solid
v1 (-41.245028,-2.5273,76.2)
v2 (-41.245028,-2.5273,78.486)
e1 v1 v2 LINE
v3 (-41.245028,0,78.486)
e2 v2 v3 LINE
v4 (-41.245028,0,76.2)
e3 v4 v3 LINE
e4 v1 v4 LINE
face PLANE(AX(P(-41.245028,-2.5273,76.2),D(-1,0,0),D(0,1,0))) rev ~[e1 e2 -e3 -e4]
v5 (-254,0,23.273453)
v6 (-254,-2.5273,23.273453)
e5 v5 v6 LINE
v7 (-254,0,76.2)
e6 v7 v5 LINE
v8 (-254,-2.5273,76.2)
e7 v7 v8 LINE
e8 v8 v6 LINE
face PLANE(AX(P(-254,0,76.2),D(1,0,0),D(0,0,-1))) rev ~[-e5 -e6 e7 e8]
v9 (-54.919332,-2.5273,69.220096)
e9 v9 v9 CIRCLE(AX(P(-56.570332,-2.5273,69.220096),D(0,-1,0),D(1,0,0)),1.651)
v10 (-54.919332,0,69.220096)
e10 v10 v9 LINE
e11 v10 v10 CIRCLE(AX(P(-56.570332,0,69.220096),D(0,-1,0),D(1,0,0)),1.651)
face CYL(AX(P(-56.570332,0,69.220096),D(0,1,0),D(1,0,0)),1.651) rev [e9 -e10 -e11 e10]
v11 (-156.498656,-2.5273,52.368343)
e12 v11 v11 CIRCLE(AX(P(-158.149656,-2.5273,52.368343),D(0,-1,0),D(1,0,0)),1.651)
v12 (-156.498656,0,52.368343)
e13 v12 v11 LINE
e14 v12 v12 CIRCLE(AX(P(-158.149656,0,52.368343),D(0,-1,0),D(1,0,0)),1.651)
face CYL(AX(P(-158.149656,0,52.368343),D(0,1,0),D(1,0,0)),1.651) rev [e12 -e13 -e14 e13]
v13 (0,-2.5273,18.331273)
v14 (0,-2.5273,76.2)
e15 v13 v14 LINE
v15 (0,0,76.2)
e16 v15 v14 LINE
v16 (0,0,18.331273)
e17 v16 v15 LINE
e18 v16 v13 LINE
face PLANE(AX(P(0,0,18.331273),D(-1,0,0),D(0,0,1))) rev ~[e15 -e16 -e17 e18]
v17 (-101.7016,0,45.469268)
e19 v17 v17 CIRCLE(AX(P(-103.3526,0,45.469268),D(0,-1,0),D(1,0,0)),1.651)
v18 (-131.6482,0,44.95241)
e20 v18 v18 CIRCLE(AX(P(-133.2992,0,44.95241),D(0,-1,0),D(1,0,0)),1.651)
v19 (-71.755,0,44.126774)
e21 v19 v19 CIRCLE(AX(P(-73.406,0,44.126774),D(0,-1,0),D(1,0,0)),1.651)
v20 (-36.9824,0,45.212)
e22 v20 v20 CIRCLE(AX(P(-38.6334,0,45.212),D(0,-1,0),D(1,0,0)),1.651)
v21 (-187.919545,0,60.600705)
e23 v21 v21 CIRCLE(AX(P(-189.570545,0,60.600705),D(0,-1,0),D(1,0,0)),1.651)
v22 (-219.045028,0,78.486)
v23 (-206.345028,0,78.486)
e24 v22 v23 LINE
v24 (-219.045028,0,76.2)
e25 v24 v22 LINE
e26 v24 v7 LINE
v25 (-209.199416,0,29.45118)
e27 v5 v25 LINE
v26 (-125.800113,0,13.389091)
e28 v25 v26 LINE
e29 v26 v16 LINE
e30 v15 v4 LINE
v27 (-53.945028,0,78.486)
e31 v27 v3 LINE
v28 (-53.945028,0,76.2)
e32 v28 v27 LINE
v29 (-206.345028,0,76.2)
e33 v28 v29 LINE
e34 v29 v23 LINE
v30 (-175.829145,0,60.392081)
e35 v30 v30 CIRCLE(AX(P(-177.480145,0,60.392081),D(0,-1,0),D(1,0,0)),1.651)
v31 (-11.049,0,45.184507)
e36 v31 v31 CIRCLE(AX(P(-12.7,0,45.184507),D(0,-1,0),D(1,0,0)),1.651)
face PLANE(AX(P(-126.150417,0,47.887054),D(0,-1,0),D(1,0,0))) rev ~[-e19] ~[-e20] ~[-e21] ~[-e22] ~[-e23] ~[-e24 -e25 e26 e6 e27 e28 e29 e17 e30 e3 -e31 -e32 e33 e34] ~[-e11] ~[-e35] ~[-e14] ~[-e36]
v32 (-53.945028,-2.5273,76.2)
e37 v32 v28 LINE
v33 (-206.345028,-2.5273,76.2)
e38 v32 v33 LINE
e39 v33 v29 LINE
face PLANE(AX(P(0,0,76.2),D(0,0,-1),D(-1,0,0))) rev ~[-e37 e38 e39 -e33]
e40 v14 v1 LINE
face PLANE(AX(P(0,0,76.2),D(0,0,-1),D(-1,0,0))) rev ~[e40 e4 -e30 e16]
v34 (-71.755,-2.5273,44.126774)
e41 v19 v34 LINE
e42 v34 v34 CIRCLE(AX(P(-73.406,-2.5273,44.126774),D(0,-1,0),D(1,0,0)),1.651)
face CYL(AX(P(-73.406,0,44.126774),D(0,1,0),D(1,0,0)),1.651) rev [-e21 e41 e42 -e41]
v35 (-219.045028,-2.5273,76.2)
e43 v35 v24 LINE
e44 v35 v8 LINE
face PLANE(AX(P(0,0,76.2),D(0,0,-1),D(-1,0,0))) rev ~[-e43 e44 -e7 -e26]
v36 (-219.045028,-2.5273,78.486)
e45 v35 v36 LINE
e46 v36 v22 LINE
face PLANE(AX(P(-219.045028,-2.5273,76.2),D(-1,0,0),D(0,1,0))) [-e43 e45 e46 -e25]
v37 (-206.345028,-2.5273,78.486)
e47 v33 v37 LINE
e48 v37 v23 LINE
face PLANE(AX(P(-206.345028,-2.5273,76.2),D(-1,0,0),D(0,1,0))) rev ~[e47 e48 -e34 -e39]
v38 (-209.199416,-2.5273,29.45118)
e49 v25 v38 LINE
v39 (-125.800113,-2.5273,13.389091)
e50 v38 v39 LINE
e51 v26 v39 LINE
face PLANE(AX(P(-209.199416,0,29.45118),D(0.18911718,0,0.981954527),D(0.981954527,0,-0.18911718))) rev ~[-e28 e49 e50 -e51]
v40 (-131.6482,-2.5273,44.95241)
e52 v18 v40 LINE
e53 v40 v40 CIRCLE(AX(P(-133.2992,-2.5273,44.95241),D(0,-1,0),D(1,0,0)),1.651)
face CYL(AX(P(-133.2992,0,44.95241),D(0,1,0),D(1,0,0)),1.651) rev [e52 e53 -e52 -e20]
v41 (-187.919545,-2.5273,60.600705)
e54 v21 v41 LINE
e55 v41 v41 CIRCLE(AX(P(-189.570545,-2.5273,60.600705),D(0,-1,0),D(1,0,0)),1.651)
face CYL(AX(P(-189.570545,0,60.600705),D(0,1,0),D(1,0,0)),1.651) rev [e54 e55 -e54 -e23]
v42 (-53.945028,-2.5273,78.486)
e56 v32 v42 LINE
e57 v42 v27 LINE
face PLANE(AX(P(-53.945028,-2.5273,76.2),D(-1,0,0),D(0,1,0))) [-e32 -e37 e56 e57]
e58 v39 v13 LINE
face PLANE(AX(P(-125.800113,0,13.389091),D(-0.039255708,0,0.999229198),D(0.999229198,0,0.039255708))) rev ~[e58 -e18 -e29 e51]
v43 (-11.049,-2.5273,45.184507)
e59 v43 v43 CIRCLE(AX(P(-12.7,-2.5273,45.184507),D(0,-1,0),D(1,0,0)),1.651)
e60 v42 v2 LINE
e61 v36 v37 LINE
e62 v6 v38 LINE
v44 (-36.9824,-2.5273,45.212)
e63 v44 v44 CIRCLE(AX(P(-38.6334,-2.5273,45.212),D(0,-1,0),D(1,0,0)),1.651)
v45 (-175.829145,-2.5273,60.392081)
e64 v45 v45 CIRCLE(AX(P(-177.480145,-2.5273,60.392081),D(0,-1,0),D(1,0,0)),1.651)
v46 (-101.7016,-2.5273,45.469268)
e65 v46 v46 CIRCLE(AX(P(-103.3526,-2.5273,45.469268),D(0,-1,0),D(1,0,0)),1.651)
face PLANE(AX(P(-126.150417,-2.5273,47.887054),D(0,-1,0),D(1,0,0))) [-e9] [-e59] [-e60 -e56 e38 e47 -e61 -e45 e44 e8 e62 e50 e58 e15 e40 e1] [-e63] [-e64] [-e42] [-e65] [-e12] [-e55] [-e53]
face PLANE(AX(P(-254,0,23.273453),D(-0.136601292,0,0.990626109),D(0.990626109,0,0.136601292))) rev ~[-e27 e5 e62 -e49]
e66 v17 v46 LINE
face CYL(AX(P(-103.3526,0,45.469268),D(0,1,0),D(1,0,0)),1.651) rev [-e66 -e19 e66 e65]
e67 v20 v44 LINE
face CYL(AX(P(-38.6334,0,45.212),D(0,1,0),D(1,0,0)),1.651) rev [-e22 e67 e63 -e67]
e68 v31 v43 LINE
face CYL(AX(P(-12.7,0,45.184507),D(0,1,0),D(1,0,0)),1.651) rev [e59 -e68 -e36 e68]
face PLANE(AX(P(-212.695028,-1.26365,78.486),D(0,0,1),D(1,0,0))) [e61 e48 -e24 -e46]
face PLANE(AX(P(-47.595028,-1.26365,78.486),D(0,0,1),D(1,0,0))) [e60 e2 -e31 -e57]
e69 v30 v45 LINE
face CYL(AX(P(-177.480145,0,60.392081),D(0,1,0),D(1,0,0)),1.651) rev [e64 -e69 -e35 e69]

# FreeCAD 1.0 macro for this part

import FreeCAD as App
import Part
import Sketcher
Q = App.Units.Quantity

doc = App.newDocument("Part")
params = doc.addObject("Spreadsheet::Sheet", "Params")
for row, (alias, value) in enumerate([
    ("sketch1_diameter", "0.13 in"),
    ("sketch1_width", "10 in"),
    ("pad1_length", "0.0995 in"),
    ("sketch2_width", "0.5 in"),
    ("pad2_length", "0.09 in"),
], start=1):
    params.set(f"A{row}", alias)
    params.set(f"B{row}", "=" + value)
    params.setAlias(f"B{row}", alias)

body = doc.addObject("PartDesign::Body", "Body")

sketch1 = doc.addObject("Sketcher::SketchObject", "Sketch")
body.addObject(sketch1)
sketch1.AttachmentSupport = (doc.XZ_Plane, [""])
sketch1.MapMode = "FlatFace"
sketch1.addGeometry([
    Part.LineSegment(App.Vector(0, 18.331273, 0), App.Vector(0, 76.2, 0)),
    Part.LineSegment(App.Vector(0, 76.2, 0), App.Vector(-254, 76.2, 0)),
    Part.LineSegment(App.Vector(-254, 76.2, 0), App.Vector(-254, 23.273453, 0)),
    Part.LineSegment(App.Vector(-254, 23.273453, 0), App.Vector(-209.199416, 29.45118, 0)),
    Part.LineSegment(App.Vector(-209.199416, 29.45118, 0), App.Vector(-125.800113, 13.389091, 0)),
    Part.LineSegment(App.Vector(-125.800113, 13.389091, 0), App.Vector(0, 18.331273, 0)),
    Part.Circle(App.Vector(-133.2992, 44.95241, 0), App.Vector(0, 0, 1), 1.651),
    Part.Circle(App.Vector(-103.3526, 45.469268, 0), App.Vector(0, 0, 1), 1.651),
    Part.Circle(App.Vector(-158.149656, 52.368343, 0), App.Vector(0, 0, 1), 1.651),
    Part.Circle(App.Vector(-73.406, 44.126774, 0), App.Vector(0, 0, 1), 1.651),
    Part.Circle(App.Vector(-38.6334, 45.212, 0), App.Vector(0, 0, 1), 1.651),
    Part.Circle(App.Vector(-12.7, 45.184507, 0), App.Vector(0, 0, 1), 1.651),
    Part.Circle(App.Vector(-189.570545, 60.600705, 0), App.Vector(0, 0, 1), 1.651),
    Part.Circle(App.Vector(-177.480145, 60.392081, 0), App.Vector(0, 0, 1), 1.651),
    Part.Circle(App.Vector(-56.570332, 69.220096, 0), App.Vector(0, 0, 1), 1.651),
], False)
sketch1.addConstraint([
    Sketcher.Constraint("Coincident", 0, 2, 1, 1),
    Sketcher.Constraint("Coincident", 1, 2, 2, 1),
    Sketcher.Constraint("Coincident", 2, 2, 3, 1),
    Sketcher.Constraint("Coincident", 3, 2, 4, 1),
    Sketcher.Constraint("Coincident", 4, 2, 5, 1),
    Sketcher.Constraint("Coincident", 5, 2, 0, 1),
    Sketcher.Constraint("Vertical", 0),
    Sketcher.Constraint("Horizontal", 1),
    Sketcher.Constraint("Vertical", 2),
    Sketcher.Constraint("Equal", 6, 7),
    Sketcher.Constraint("Equal", 7, 8),
    Sketcher.Constraint("Equal", 8, 9),
    Sketcher.Constraint("Equal", 9, 10),
    Sketcher.Constraint("Equal", 10, 11),
    Sketcher.Constraint("Equal", 11, 12),
    Sketcher.Constraint("Equal", 12, 13),
    Sketcher.Constraint("Equal", 13, 14),
    Sketcher.Constraint("PointOnObject", 0, 2, -2),
    Sketcher.Constraint("Diameter", 6, Q("0.13 in")),
    Sketcher.Constraint("DistanceX", 1, 2, 1, 1, Q("10 in")),
    Sketcher.Constraint("DistanceY", -1, 1, 0, 2, Q("3 in")),
    Sketcher.Constraint("DistanceX", 11, 3, -1, 1, Q("0.5 in")),
    Sketcher.Constraint("DistanceX", 9, 3, -1, 1, Q("2.89 in")),
    Sketcher.Constraint("DistanceY", -1, 1, 10, 3, Q("1.78 in")),
    Sketcher.Constraint("DistanceX", 6, 3, -1, 1, Q("5.248 in")),
    Sketcher.Constraint("DistanceX", 7, 3, -1, 1, Q("4.069 in")),
    Sketcher.Constraint("DistanceX", 10, 3, -1, 1, Q("1.521 in")),
    Sketcher.Constraint("DistanceX", 12, 3, 13, 3, Q("0.476 in")),
    Sketcher.Constraint("DistanceY", 3, 2, 13, 3, Q("30.940901 mm")),
    Sketcher.Constraint("DistanceY", 5, 2, 9, 3, Q("25.795501 mm")),
    Sketcher.Constraint("Distance", 4, Q("84.93194 mm")),
    Sketcher.Constraint("DistanceY", 0, 1, 0, 2, Q("57.868727 mm")),
    Sketcher.Constraint("DistanceY", 2, 2, 2, 1, Q("52.926547 mm")),
    Sketcher.Constraint("DistanceY", -1, 1, 6, 3, Q("44.95241 mm")),
    Sketcher.Constraint("DistanceY", -1, 1, 13, 3, Q("60.392081 mm")),
    Sketcher.Constraint("DistanceY", -1, 1, 4, 2, Q("13.389091 mm")),
    Sketcher.Constraint("DistanceY", 9, 3, 8, 3, Q("8.241569 mm")),
    Sketcher.Constraint("DistanceY", 11, 3, 7, 3, Q("0.284761 mm")),
    Sketcher.Constraint("DistanceX", 12, 3, 8, 3, Q("31.420889 mm")),
    Sketcher.Constraint("DistanceY", 8, 3, 12, 3, Q("8.232362 mm")),
    Sketcher.Constraint("DistanceX", 14, 3, 10, 3, Q("17.936932 mm")),
    Sketcher.Constraint("DistanceY", 11, 3, 14, 3, Q("24.035589 mm")),
    Sketcher.Constraint("DistanceX", 3, 2, 12, 3, Q("19.628871 mm")),
    Sketcher.Constraint("Distance", 3, Q("45.224514 mm")),
    Sketcher.Constraint("DistanceY", -1, 1, 7, 3, Q("45.469268 mm")),
])
sketch1.setExpression("Constraints[18]", "Params.sketch1_diameter")
sketch1.setExpression("Constraints[19]", "Params.sketch1_width")
pad1 = doc.addObject("PartDesign::Pad", "Pad")
body.addObject(pad1)
pad1.Profile = sketch1
pad1.setExpression("Length", "Params.pad1_length")

sketch2 = doc.addObject("Sketcher::SketchObject", "Sketch001")
body.addObject(sketch2)
sketch2.AttachmentSupport = (doc.XY_Plane, [""])
sketch2.MapMode = "FlatFace"
sketch2.AttachmentOffset = App.Placement(App.Vector(0, 0, 3 * 25.4), App.Rotation())
sketch2.addGeometry([
    Part.LineSegment(App.Vector(-53.945028, 0, 0), App.Vector(-53.945028, -2.5273, 0)),
    Part.LineSegment(App.Vector(-53.945028, -2.5273, 0), App.Vector(-41.245028, -2.5273, 0)),
    Part.LineSegment(App.Vector(-41.245028, -2.5273, 0), App.Vector(-41.245028, 0, 0)),
    Part.LineSegment(App.Vector(-41.245028, 0, 0), App.Vector(-53.945028, 0, 0)),
    Part.LineSegment(App.Vector(-219.045028, 0, 0), App.Vector(-219.045028, -2.5273, 0)),
    Part.LineSegment(App.Vector(-219.045028, -2.5273, 0), App.Vector(-206.345028, -2.5273, 0)),
    Part.LineSegment(App.Vector(-206.345028, -2.5273, 0), App.Vector(-206.345028, 0, 0)),
    Part.LineSegment(App.Vector(-206.345028, 0, 0), App.Vector(-219.045028, 0, 0)),
], False)
sketch2.addConstraint([
    Sketcher.Constraint("Coincident", 0, 2, 1, 1),
    Sketcher.Constraint("Coincident", 1, 2, 2, 1),
    Sketcher.Constraint("Coincident", 2, 2, 3, 1),
    Sketcher.Constraint("Coincident", 3, 2, 0, 1),
    Sketcher.Constraint("Coincident", 4, 2, 5, 1),
    Sketcher.Constraint("Coincident", 5, 2, 6, 1),
    Sketcher.Constraint("Coincident", 6, 2, 7, 1),
    Sketcher.Constraint("Coincident", 7, 2, 4, 1),
    Sketcher.Constraint("Vertical", 0),
    Sketcher.Constraint("Horizontal", 1),
    Sketcher.Constraint("Vertical", 2),
    Sketcher.Constraint("Horizontal", 3),
    Sketcher.Constraint("Vertical", 4),
    Sketcher.Constraint("Horizontal", 5),
    Sketcher.Constraint("Vertical", 6),
    Sketcher.Constraint("Horizontal", 7),
    Sketcher.Constraint("PointOnObject", 2, 2, -1),
    Sketcher.Constraint("PointOnObject", 6, 2, -1),
    Sketcher.Constraint("Horizontal", 1, 2, 4, 2),
    Sketcher.Constraint("Equal", 3, 5),
    Sketcher.Constraint("DistanceX", 1, 1, 1, 2, Q("0.5 in")),
    Sketcher.Constraint("DistanceX", 4, 2, 1, 2, Q("7 in")),
    Sketcher.Constraint("DistanceY", 0, 2, 0, 1, Q("0.0995 in")),
    Sketcher.Constraint("DistanceX", 4, 2, -1, 1, Q("219.045028 mm")),
])
sketch2.setExpression("Constraints[20]", "Params.sketch2_width")
pad2 = doc.addObject("PartDesign::Pad", "Pad001")
body.addObject(pad2)
pad2.Profile = sketch2
pad2.setExpression("Length", "Params.pad2_length")

doc.recompute()
